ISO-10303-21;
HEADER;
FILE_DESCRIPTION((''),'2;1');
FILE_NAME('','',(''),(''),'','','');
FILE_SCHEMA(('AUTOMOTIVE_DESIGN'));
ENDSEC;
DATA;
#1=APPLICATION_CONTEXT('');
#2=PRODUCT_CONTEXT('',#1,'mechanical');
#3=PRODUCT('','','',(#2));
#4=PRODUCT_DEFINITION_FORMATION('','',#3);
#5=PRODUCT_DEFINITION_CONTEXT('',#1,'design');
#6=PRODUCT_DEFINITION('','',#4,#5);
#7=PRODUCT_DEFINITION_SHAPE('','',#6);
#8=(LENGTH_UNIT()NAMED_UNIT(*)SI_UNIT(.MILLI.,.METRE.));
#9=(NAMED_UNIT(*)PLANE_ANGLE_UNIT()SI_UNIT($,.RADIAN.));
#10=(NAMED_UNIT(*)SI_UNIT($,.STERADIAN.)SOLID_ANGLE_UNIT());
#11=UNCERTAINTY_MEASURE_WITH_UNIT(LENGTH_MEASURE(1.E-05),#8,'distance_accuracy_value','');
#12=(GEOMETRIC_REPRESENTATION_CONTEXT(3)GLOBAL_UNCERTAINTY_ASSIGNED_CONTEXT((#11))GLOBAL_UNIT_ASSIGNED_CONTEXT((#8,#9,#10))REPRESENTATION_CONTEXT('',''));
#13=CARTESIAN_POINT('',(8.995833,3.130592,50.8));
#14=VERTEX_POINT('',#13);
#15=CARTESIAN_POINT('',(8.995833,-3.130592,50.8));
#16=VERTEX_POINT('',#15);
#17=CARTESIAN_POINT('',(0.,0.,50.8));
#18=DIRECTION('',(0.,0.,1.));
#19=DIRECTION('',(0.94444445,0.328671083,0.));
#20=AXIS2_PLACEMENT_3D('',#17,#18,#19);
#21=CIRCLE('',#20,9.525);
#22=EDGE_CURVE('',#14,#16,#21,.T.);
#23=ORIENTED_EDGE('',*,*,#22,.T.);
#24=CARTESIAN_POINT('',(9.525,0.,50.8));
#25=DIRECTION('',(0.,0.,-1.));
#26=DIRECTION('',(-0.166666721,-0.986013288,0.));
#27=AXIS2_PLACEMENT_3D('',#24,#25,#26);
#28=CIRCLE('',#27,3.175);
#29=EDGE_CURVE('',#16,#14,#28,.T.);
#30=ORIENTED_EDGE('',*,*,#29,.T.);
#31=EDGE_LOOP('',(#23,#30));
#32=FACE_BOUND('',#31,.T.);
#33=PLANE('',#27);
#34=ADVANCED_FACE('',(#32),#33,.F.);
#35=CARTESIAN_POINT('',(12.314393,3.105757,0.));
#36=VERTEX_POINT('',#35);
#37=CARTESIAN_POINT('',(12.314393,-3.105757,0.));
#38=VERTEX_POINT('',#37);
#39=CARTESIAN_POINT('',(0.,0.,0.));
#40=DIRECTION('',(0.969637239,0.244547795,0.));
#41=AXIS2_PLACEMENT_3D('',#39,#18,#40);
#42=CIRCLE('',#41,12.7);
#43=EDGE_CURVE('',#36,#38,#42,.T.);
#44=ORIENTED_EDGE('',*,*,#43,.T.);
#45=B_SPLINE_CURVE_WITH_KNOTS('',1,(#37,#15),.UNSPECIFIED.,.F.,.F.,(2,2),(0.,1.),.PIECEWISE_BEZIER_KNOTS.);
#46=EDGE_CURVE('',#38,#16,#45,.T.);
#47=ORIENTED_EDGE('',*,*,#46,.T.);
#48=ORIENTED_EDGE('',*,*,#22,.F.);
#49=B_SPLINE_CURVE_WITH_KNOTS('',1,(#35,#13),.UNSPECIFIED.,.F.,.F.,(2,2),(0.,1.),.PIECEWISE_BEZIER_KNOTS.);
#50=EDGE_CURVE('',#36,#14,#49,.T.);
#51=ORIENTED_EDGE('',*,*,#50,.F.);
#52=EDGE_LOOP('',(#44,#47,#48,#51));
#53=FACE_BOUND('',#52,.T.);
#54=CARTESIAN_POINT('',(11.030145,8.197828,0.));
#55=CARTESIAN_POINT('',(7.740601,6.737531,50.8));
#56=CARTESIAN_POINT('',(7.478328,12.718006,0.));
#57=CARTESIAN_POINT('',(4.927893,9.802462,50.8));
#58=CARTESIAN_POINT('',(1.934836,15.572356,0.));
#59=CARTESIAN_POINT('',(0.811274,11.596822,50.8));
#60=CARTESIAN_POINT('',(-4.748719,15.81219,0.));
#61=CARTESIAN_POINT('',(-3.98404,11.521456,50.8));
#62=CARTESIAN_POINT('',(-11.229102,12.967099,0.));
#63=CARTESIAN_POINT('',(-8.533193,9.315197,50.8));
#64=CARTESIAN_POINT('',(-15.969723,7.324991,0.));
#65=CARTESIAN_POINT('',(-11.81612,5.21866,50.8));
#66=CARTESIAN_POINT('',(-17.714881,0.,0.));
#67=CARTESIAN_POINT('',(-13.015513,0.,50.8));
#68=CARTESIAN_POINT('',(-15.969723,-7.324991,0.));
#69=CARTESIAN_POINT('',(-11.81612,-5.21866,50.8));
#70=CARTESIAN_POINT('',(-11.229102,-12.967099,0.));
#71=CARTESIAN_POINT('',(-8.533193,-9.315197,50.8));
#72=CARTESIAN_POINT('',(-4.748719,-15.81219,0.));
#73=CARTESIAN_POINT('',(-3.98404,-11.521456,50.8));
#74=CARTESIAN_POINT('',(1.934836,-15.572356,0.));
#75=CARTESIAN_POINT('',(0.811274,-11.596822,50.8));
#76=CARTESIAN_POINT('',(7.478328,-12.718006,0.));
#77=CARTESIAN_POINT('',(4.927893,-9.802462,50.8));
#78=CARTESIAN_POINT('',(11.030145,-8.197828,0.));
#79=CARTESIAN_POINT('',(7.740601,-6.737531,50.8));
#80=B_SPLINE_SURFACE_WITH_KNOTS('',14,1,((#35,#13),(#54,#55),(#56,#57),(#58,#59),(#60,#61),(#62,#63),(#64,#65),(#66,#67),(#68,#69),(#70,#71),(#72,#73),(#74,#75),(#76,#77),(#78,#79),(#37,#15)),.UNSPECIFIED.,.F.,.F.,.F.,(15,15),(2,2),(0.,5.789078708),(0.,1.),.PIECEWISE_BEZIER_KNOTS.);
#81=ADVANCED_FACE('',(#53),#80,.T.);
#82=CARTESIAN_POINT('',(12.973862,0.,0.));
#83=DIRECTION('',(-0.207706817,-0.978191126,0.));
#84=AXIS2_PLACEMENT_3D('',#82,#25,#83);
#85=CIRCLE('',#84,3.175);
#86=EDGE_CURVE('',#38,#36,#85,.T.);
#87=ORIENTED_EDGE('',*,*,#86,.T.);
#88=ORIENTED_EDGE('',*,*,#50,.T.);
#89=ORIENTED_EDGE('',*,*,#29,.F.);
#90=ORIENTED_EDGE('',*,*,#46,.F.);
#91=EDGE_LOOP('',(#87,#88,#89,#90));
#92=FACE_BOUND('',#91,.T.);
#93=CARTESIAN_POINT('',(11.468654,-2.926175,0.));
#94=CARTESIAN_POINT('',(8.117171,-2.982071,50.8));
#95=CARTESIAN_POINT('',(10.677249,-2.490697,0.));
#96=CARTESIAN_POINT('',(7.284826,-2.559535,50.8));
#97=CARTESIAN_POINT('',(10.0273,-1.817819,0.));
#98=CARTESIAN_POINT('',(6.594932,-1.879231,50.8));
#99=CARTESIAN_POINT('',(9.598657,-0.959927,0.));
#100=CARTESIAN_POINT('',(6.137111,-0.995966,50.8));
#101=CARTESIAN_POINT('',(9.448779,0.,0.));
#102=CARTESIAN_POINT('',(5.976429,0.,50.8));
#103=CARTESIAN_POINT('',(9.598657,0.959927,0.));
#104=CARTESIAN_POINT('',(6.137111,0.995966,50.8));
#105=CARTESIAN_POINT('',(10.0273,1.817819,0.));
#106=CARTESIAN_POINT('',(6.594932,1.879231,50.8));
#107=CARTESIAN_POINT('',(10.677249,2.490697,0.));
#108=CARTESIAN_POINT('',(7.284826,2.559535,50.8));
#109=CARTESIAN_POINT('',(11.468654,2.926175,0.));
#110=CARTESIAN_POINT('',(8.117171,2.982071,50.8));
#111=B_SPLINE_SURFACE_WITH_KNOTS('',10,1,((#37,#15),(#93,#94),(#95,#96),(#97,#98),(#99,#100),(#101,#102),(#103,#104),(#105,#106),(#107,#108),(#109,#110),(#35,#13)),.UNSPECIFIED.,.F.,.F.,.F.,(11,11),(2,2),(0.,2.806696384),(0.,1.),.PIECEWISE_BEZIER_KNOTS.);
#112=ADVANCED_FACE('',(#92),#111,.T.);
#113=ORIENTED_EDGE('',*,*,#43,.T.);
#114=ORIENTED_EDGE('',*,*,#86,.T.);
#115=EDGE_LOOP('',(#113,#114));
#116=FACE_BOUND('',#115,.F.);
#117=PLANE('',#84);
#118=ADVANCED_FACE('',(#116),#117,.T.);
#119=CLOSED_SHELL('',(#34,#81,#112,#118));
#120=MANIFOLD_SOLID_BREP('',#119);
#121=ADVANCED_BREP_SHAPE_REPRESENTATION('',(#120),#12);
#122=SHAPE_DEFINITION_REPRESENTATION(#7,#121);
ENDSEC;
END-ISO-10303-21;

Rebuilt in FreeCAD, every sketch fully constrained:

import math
import FreeCAD as App
import Part
import Sketcher
from FreeCAD import Vector
Q = App.Units.Quantity

doc = App.newDocument("Part")
body = doc.addObject("PartDesign::Body", "Body")

sketch1 = doc.addObject("Sketcher::SketchObject", "Sketch")
body.addObject(sketch1)
sketch1.AttachmentSupport = (doc.XY_Plane, [""])
sketch1.MapMode = "FlatFace"
sketch1.addGeometry([
    Part.ArcOfCircle(Part.Circle(Vector(13, 0, 0), Vector(0, 0, 1), 3.2), math.radians(102), math.radians(258)),
    Part.ArcOfCircle(Part.Circle(Vector(0, 0, 0), Vector(0, 0, 1), 12.7), math.radians(14), math.radians(346)),
], False)
sketch1.addConstraint([
    Sketcher.Constraint("Coincident", 0, 1, 1, 1),
    Sketcher.Constraint("Coincident", 1, 2, 0, 2),
    Sketcher.Constraint("Coincident", 1, 3, -1, 1),
    Sketcher.Constraint("PointOnObject", 0, 3, -1),
    Sketcher.Constraint("Radius", 1, Q("0.5 in")),
    Sketcher.Constraint("Radius", 0, Q("0.125 in")),
    Sketcher.Constraint("DistanceX", 0, 1, 0, 3, Q("0.659469 mm")),
])

sketch2 = doc.addObject("Sketcher::SketchObject", "Sketch001")
body.addObject(sketch2)
sketch2.AttachmentSupport = (doc.XY_Plane, [""])
sketch2.MapMode = "FlatFace"
sketch2.AttachmentOffset = App.Placement(Vector(0, 0, 2 * 25.4), App.Rotation())
sketch2.addGeometry([
    Part.ArcOfCircle(Part.Circle(Vector(9.5, 0, 0), Vector(0, 0, 1), 3.2), math.radians(100), math.radians(260)),
    Part.ArcOfCircle(Part.Circle(Vector(0, 0, 0), Vector(0, 0, 1), 9.5), math.radians(19), math.radians(341)),
], False)
sketch2.addConstraint([
    Sketcher.Constraint("Coincident", 0, 1, 1, 1),
    Sketcher.Constraint("Coincident", 1, 2, 0, 2),
    Sketcher.Constraint("Coincident", 1, 3, -1, 1),
    Sketcher.Constraint("PointOnObject", 0, 3, -1),
    Sketcher.Constraint("Radius", 0, Q("0.125 in")),
    Sketcher.Constraint("Radius", 1, Q("0.375 in")),
    Sketcher.Constraint("DistanceX", -1, 1, 0, 3, Q("0.375 in")),
])

additiveloft = doc.addObject("PartDesign::AdditiveLoft", "AdditiveLoft")
body.addObject(additiveloft)
additiveloft.Profile = sketch1
additiveloft.Sections = [sketch2]

doc.recompute()
